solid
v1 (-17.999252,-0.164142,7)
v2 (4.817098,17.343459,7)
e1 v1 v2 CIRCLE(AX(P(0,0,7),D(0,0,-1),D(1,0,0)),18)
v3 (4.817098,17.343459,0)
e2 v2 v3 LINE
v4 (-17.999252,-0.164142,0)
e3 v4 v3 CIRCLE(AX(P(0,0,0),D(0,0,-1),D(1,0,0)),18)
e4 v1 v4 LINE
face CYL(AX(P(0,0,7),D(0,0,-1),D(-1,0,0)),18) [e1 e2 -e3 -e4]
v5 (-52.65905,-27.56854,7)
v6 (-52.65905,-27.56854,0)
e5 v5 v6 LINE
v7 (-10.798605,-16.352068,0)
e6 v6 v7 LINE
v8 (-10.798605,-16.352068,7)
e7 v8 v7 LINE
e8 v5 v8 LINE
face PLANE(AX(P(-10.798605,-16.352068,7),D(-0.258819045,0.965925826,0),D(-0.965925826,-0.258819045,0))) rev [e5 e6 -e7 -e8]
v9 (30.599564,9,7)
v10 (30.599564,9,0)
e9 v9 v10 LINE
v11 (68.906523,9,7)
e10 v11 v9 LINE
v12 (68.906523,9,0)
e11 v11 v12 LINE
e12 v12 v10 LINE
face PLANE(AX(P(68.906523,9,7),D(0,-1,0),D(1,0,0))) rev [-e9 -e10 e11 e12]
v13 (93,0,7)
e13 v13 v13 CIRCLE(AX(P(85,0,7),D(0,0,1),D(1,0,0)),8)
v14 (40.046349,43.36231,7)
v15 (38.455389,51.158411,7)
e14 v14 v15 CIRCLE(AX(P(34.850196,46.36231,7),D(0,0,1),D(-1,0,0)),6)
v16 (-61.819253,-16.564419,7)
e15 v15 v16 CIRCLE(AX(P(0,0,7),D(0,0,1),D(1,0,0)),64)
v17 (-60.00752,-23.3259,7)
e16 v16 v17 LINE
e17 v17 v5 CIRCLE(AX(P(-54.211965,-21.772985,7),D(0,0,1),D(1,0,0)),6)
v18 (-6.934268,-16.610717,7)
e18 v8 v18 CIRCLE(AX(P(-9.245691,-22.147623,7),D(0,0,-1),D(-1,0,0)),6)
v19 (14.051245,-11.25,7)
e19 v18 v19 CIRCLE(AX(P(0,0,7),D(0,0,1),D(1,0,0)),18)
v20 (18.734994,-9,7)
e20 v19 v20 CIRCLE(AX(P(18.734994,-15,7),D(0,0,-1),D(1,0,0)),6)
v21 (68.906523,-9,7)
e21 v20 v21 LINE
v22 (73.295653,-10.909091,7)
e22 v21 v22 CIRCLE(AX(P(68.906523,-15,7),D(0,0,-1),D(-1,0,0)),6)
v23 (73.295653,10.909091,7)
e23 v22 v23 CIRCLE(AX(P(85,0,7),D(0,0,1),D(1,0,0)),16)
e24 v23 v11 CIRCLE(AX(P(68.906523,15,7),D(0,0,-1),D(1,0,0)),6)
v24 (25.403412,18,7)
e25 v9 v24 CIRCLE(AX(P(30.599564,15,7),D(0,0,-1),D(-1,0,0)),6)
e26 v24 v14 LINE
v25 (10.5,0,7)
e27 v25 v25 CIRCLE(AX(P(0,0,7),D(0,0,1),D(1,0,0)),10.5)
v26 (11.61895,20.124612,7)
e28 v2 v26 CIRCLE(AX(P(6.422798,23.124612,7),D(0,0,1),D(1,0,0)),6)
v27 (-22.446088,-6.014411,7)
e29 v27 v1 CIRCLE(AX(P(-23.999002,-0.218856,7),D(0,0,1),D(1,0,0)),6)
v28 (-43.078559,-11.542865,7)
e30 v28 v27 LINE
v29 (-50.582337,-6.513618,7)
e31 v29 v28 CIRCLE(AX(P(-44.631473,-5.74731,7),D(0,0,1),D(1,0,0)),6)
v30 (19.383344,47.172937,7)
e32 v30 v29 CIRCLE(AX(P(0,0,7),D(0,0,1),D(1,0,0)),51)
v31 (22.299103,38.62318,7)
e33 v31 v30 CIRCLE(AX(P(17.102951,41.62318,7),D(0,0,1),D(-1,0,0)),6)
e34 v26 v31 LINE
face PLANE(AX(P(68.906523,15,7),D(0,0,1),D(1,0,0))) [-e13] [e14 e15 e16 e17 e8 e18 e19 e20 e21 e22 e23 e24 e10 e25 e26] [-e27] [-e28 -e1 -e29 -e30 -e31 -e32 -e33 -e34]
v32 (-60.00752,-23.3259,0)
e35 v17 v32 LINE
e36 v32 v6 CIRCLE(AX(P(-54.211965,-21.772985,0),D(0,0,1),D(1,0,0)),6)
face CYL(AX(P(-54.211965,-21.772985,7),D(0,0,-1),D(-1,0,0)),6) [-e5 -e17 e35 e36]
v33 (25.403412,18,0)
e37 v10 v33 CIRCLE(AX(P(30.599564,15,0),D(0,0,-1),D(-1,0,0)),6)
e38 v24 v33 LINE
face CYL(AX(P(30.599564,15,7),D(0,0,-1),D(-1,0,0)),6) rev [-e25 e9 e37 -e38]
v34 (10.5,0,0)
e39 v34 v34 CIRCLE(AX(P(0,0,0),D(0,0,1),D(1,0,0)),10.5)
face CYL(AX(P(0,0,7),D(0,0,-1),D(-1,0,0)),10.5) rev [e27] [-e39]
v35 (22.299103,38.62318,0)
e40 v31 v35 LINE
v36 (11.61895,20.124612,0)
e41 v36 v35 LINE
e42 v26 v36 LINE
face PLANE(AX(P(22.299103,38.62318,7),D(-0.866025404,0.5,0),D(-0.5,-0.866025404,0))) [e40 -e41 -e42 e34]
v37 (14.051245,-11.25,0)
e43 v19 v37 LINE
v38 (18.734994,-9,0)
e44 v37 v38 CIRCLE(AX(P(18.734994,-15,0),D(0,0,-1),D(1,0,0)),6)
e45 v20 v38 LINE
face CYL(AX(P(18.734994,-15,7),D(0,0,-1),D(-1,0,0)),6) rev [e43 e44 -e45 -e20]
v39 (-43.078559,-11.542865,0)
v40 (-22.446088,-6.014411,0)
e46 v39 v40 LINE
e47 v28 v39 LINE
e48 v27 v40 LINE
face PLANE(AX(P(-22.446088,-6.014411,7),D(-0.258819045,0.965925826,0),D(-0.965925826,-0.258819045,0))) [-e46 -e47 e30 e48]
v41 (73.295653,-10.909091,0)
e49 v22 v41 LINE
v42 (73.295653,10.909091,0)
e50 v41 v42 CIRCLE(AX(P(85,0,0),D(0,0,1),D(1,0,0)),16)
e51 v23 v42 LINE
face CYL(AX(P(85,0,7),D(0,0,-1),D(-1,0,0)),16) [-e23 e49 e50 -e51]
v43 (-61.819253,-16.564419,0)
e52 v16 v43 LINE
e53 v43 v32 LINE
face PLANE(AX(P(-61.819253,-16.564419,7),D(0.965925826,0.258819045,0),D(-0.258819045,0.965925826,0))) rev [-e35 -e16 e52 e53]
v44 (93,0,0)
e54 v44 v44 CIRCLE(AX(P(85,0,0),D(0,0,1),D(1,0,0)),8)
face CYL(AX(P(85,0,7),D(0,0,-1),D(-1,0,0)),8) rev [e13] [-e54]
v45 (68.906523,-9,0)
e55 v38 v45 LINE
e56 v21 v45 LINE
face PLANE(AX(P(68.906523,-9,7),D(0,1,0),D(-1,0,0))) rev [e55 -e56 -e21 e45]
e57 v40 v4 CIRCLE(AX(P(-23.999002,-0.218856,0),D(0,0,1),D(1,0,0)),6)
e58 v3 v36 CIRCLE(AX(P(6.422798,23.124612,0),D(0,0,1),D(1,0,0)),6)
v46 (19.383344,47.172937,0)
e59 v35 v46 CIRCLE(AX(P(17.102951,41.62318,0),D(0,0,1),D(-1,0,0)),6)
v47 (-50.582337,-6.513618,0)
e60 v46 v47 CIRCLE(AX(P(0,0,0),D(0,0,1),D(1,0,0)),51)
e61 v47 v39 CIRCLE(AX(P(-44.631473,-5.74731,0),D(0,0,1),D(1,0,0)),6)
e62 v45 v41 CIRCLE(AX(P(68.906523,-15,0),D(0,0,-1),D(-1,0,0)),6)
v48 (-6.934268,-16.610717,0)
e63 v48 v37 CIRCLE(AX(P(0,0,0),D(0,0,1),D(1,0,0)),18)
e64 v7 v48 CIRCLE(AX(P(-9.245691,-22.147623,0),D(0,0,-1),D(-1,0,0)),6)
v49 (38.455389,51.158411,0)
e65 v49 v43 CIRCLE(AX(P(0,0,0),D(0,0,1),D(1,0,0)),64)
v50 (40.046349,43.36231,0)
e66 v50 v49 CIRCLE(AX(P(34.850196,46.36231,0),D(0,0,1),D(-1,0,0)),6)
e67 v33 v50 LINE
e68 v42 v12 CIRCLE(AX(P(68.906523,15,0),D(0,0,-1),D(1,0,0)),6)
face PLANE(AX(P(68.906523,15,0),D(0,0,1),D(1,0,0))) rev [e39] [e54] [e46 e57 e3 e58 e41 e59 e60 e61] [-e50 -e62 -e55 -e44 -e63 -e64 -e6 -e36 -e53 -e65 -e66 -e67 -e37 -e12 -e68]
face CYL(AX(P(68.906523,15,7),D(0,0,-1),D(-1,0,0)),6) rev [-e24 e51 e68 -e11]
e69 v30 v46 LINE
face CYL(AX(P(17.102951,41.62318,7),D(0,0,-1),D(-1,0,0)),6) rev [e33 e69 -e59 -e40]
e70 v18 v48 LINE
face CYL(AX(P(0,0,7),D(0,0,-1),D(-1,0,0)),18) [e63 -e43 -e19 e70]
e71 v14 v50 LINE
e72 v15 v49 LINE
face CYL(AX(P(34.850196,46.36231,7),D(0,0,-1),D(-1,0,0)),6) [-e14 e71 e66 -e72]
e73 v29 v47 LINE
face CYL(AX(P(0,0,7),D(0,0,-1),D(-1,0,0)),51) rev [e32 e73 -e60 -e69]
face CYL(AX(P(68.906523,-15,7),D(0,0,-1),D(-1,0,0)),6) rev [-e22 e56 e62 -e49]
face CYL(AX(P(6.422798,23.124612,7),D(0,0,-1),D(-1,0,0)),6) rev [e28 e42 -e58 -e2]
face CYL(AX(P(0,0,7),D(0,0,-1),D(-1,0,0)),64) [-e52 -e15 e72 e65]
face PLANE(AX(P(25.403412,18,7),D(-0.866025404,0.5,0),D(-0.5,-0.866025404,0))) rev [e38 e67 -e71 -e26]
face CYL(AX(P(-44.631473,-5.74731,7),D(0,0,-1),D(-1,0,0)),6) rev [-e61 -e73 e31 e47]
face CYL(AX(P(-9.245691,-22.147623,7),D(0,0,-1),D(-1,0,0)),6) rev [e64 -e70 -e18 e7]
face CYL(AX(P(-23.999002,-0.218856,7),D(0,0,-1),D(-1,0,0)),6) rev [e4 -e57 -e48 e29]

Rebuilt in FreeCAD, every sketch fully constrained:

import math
import FreeCAD as App
import Part
import Sketcher
Q = App.Units.Quantity

doc = App.newDocument("Part")
params = doc.addObject("Spreadsheet::Sheet", "Params")
for row, (alias, value) in enumerate([
    ("sketch1_diameter", "21 mm"),
    ("sketch1_diameter2", "16 mm"),
    ("sketch1_radius", "6 mm"),
    ("sketch1_radius2", "64 mm"),
    ("sketch1_radius3", "18 mm"),
    ("pad1_length", "7 mm"),
], start=1):
    params.set(f"A{row}", alias)
    params.set(f"B{row}", "=" + value)
    params.setAlias(f"B{row}", alias)

body = doc.addObject("PartDesign::Body", "Body")

sketch1 = body.newObject("Sketcher::SketchObject", "Sketch")
sketch1.AttachmentSupport = (doc.getObject("XY_Plane"), [""])
sketch1.MapMode = "FlatFace"
sketch1.addGeometry([
    Part.LineSegment(App.Vector(25.403412, 18, 0), App.Vector(40.046349, 43.36231, 0)),
    Part.ArcOfCircle(Part.Circle(App.Vector(34.850196, 46.36231, 0), App.Vector(0, 0, 1), 6), math.radians(-30), math.radians(53.068094)),
    Part.ArcOfCircle(Part.Circle(App.Vector(0, 0, 0), App.Vector(0, 0, 1), 64), math.radians(53.068094), math.radians(195)),
    Part.LineSegment(App.Vector(-61.819253, -16.564419, 0), App.Vector(-60.00752, -23.3259, 0)),
    Part.ArcOfCircle(Part.Circle(App.Vector(-54.211965, -21.772985, 0), App.Vector(0, 0, 1), 6), math.radians(-165), math.radians(-75)),
    Part.LineSegment(App.Vector(-52.65905, -27.56854, 0), App.Vector(-10.798605, -16.352068, 0)),
    Part.ArcOfCircle(Part.Circle(App.Vector(-9.245691, -22.147623, 0), App.Vector(0, 0, 1), 6), math.radians(67.341538), math.radians(105)),
    Part.ArcOfCircle(Part.Circle(App.Vector(0, 0, 0), App.Vector(0, 0, 1), 18), math.radians(-112.658462), math.radians(-38.682187)),
    Part.ArcOfCircle(Part.Circle(App.Vector(18.734994, -15, 0), App.Vector(0, 0, 1), 6), math.radians(90), math.radians(141.317813)),
    Part.LineSegment(App.Vector(18.734994, -9, 0), App.Vector(68.906523, -9, 0)),
    Part.ArcOfCircle(Part.Circle(App.Vector(68.906523, -15, 0), App.Vector(0, 0, 1), 6), math.radians(42.985886), math.radians(90)),
    Part.ArcOfCircle(Part.Circle(App.Vector(85, 0, 0), App.Vector(0, 0, 1), 16), math.radians(-137.014114), math.radians(137.014114)),
    Part.ArcOfCircle(Part.Circle(App.Vector(68.906523, 15, 0), App.Vector(0, 0, 1), 6), math.radians(-90), math.radians(-42.985886)),
    Part.LineSegment(App.Vector(68.906523, 9, 0), App.Vector(30.599564, 9, 0)),
    Part.ArcOfCircle(Part.Circle(App.Vector(30.599564, 15, 0), App.Vector(0, 0, 1), 6), math.radians(150), math.radians(270)),
    Part.Circle(App.Vector(0, 0, 0), App.Vector(0, 0, 1), 10.5),
    Part.Circle(App.Vector(85, 0, 0), App.Vector(0, 0, 1), 8),
    Part.ArcOfCircle(Part.Circle(App.Vector(-23.999002, -0.218856, 0), App.Vector(0, 0, 1), 6), math.radians(-75), math.radians(0.522488)),
    Part.LineSegment(App.Vector(-22.446088, -6.014411, 0), App.Vector(-43.078559, -11.542865, 0)),
    Part.ArcOfCircle(Part.Circle(App.Vector(-44.631473, -5.74731, 0), App.Vector(0, 0, 1), 6), math.radians(-172.662256), math.radians(-75)),
    Part.ArcOfCircle(Part.Circle(App.Vector(0, 0, 0), App.Vector(0, 0, 1), 51), math.radians(67.662256), math.radians(187.337744)),
    Part.ArcOfCircle(Part.Circle(App.Vector(17.102951, 41.62318, 0), App.Vector(0, 0, 1), 6), math.radians(-30), math.radians(67.662256)),
    Part.LineSegment(App.Vector(22.299103, 38.62318, 0), App.Vector(11.61895, 20.124612, 0)),
    Part.ArcOfCircle(Part.Circle(App.Vector(6.422798, 23.124612, 0), App.Vector(0, 0, 1), 6), math.radians(-105.522488), math.radians(-30)),
    Part.ArcOfCircle(Part.Circle(App.Vector(0, 0, 0), App.Vector(0, 0, 1), 18), math.radians(74.477512), math.radians(180.522488)),
], False)
sketch1.addConstraint([
    Sketcher.Constraint("Tangent", 0, 2, 1, 1),
    Sketcher.Constraint("Tangent", 1, 2, 2, 1),
    Sketcher.Constraint("Tangent", 2, 2, 3, 1),
    Sketcher.Constraint("Tangent", 3, 2, 4, 1),
    Sketcher.Constraint("Tangent", 4, 2, 5, 1),
    Sketcher.Constraint("Tangent", 5, 2, 6, 2),
    Sketcher.Constraint("Tangent", 6, 1, 7, 1),
    Sketcher.Constraint("Tangent", 7, 2, 8, 2),
    Sketcher.Constraint("Tangent", 8, 1, 9, 1),
    Sketcher.Constraint("Tangent", 9, 2, 10, 2),
    Sketcher.Constraint("Tangent", 10, 1, 11, 1),
    Sketcher.Constraint("Tangent", 11, 2, 12, 2),
    Sketcher.Constraint("Tangent", 12, 1, 13, 1),
    Sketcher.Constraint("Tangent", 13, 2, 14, 2),
    Sketcher.Constraint("Tangent", 14, 1, 0, 1),
    Sketcher.Constraint("Tangent", 17, 1, 18, 1),
    Sketcher.Constraint("Tangent", 18, 2, 19, 2),
    Sketcher.Constraint("Tangent", 19, 1, 20, 2),
    Sketcher.Constraint("Tangent", 20, 1, 21, 2),
    Sketcher.Constraint("Tangent", 21, 1, 22, 1),
    Sketcher.Constraint("Tangent", 22, 2, 23, 2),
    Sketcher.Constraint("Tangent", 23, 1, 24, 1),
    Sketcher.Constraint("Tangent", 24, 2, 17, 2),
    Sketcher.Constraint("Horizontal", 9),
    Sketcher.Constraint("Horizontal", 13),
    Sketcher.Constraint("Coincident", 2, 3, -1, 1),
    Sketcher.Constraint("Coincident", 7, 3, -1, 1),
    Sketcher.Constraint("Coincident", 15, 3, -1, 1),
    Sketcher.Constraint("Coincident", 20, 3, -1, 1),
    Sketcher.Constraint("Coincident", 24, 3, -1, 1),
    Sketcher.Constraint("Coincident", 16, 3, 11, 3),
    Sketcher.Constraint("Equal", 1, 4),
    Sketcher.Constraint("Equal", 4, 6),
    Sketcher.Constraint("Equal", 6, 8),
    Sketcher.Constraint("Equal", 8, 10),
    Sketcher.Constraint("Equal", 10, 12),
    Sketcher.Constraint("Equal", 12, 14),
    Sketcher.Constraint("Equal", 14, 17),
    Sketcher.Constraint("Equal", 17, 19),
    Sketcher.Constraint("Equal", 19, 21),
    Sketcher.Constraint("Equal", 21, 23),
    Sketcher.Constraint("Equal", 7, 24),
    Sketcher.Constraint("Symmetric", 10, 3, 12, 3, -1),
    Sketcher.Constraint("Perpendicular", 3, 5),
    Sketcher.Constraint("Parallel", 5, 18),
    Sketcher.Constraint("Parallel", 0, 22),
    Sketcher.Constraint("Equal", 18, 22),
    Sketcher.Constraint("Diameter", 15, Q("21 mm")),
    Sketcher.Constraint("Diameter", 16, Q("16 mm")),
    Sketcher.Constraint("Radius", 1, Q("6 mm")),
    Sketcher.Constraint("Radius", 2, Q("64 mm")),
    Sketcher.Constraint("Radius", 7, Q("18 mm")),
    Sketcher.Constraint("Radius", 11, Q("16 mm")),
    Sketcher.Constraint("Radius", 20, Q("51 mm")),
    Sketcher.Constraint("Angle", 0, Q("60 deg")),
    Sketcher.Constraint("Angle", 3, Q("-75 deg")),
    Sketcher.Constraint("Distance", 3, Q("7 mm")),
    Sketcher.Constraint("DistanceY", 8, 3, -1, 1, Q("15 mm")),
    Sketcher.Constraint("DistanceX", -1, 1, 11, 3, Q("85 mm")),
    Sketcher.Constraint("DistanceX", 13, 2, 13, 1, Q("38.306959 mm")),
    Sketcher.Constraint("DistanceX", -1, 1, 23, 1, Q("4.817098 mm")),
])
sketch1.setExpression("Constraints[47]", "Params.sketch1_diameter")
sketch1.setExpression("Constraints[48]", "Params.sketch1_diameter2")
sketch1.setExpression("Constraints[49]", "Params.sketch1_radius")
sketch1.setExpression("Constraints[50]", "Params.sketch1_radius2")
sketch1.setExpression("Constraints[51]", "Params.sketch1_radius3")
pad1 = body.newObject("PartDesign::Pad", "Pad")
pad1.Profile = sketch1
pad1.setExpression("Length", "Params.pad1_length")

doc.recompute()
